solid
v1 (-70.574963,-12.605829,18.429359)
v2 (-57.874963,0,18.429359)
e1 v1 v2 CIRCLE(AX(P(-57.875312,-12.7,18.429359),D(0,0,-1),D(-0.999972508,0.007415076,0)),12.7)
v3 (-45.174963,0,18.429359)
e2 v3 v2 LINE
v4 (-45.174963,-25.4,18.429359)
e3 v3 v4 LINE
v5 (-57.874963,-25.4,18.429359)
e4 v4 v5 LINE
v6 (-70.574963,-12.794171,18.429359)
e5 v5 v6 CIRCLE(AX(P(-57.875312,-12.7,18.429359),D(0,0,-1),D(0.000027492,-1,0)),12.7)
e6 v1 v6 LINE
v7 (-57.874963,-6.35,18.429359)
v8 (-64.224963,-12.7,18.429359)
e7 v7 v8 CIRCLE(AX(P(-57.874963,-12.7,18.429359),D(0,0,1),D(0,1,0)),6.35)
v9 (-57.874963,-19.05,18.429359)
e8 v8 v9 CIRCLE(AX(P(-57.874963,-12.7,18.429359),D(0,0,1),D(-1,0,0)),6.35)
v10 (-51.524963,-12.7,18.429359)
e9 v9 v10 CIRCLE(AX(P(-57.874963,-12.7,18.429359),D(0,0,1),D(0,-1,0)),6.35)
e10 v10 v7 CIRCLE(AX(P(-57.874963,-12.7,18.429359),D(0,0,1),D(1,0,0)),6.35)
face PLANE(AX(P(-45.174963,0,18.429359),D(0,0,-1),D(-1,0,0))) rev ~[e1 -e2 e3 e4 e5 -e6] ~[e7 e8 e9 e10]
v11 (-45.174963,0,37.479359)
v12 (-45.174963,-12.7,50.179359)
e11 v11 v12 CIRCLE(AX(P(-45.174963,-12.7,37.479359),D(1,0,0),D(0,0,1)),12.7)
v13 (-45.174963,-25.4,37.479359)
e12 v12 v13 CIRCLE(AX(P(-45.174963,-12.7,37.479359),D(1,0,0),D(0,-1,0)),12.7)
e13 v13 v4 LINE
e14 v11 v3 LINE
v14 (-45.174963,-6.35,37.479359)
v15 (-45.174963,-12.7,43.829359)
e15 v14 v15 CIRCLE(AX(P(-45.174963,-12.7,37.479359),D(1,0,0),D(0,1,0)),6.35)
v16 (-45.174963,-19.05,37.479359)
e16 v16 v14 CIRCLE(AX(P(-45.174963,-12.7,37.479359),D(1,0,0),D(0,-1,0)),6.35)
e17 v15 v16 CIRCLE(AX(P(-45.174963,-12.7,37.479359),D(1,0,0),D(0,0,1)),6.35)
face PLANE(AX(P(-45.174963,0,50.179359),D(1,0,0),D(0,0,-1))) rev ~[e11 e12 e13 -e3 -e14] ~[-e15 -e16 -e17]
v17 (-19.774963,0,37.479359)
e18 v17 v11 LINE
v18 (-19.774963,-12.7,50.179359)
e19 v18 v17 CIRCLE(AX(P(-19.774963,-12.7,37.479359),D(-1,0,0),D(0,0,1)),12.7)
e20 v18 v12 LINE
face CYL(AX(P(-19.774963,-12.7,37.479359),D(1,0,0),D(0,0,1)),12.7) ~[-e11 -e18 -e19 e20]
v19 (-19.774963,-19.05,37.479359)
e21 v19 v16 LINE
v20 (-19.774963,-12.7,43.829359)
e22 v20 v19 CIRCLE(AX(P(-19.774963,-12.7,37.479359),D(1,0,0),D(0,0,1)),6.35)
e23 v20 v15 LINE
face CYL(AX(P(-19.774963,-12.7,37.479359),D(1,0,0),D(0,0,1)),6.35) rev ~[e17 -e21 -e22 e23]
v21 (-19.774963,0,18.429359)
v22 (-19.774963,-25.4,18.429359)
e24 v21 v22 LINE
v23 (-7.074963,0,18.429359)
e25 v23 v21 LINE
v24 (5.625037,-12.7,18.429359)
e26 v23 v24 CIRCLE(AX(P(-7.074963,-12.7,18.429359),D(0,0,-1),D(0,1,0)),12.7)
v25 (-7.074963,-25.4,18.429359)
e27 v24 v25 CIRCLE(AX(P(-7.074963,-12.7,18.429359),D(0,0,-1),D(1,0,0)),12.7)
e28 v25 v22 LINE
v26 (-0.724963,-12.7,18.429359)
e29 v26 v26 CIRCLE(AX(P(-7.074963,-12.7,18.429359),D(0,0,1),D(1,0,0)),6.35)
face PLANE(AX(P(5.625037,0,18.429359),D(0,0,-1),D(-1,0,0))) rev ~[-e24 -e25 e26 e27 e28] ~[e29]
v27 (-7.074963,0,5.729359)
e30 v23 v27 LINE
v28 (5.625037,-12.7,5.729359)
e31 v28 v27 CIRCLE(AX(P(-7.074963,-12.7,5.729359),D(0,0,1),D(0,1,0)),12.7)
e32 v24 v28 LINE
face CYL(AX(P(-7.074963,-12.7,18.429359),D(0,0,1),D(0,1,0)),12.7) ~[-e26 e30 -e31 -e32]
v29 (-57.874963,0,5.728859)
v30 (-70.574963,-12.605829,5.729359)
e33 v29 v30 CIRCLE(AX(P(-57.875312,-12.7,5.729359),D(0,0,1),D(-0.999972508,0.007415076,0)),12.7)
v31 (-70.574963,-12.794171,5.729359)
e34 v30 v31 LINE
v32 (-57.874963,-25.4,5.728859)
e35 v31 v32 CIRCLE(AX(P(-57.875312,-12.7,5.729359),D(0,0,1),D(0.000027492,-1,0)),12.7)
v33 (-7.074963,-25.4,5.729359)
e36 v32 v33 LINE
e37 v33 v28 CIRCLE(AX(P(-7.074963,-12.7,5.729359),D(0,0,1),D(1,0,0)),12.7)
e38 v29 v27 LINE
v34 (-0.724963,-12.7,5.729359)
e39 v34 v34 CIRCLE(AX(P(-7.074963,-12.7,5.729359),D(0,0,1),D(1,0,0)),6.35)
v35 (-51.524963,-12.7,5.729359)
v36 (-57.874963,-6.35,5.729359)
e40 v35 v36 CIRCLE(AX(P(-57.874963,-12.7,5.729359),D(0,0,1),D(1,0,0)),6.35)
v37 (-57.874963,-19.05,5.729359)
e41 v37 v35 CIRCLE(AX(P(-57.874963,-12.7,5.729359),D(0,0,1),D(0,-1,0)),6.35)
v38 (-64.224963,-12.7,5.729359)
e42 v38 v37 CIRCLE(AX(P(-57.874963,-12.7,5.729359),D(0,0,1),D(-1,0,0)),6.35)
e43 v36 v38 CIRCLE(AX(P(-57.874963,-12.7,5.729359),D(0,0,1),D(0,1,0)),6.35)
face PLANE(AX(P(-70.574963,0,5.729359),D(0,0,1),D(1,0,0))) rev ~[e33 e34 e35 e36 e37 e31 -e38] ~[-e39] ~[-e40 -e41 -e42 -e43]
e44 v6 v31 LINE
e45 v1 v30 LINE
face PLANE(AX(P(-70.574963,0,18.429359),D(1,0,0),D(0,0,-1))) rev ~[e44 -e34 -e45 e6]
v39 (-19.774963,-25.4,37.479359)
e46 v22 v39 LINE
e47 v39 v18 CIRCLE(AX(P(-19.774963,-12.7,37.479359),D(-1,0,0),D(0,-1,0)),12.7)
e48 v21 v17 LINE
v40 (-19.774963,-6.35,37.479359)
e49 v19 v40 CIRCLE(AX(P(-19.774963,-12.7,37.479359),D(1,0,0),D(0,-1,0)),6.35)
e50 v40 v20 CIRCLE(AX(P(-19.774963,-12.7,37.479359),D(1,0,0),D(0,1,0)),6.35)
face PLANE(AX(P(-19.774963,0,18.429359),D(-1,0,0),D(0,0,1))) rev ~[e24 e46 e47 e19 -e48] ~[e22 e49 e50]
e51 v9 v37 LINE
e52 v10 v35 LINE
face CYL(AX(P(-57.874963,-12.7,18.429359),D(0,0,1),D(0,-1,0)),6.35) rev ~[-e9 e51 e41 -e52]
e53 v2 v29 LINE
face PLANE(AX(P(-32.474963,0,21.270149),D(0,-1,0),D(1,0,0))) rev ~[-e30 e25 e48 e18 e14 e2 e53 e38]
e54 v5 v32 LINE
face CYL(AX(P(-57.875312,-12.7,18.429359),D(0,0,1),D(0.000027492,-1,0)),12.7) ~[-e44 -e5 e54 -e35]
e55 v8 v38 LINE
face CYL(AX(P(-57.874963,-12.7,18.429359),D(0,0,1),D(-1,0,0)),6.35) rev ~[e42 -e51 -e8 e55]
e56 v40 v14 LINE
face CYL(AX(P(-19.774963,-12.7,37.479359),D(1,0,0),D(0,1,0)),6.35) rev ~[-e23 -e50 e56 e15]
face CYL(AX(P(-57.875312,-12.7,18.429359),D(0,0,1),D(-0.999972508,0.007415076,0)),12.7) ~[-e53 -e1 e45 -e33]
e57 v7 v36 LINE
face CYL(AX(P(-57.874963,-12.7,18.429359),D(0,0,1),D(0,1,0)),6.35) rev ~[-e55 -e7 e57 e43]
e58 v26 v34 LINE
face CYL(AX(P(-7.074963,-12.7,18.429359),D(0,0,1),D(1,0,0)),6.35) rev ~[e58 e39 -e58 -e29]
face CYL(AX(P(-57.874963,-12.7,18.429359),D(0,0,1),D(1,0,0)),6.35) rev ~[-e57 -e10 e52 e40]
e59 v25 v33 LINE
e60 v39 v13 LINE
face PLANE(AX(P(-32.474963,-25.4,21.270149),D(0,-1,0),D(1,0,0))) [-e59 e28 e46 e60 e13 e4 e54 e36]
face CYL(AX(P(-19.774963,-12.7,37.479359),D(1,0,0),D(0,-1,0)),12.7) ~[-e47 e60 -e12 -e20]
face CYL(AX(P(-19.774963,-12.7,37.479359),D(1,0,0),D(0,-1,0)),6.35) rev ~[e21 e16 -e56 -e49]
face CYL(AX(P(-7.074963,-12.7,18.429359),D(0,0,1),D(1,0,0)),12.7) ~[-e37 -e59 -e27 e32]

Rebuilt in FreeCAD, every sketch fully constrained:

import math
import FreeCAD as App
import Part
import Sketcher
from FreeCAD import Vector
Q = App.Units.Quantity

doc = App.newDocument("Part")
body = doc.addObject("PartDesign::Body", "Body")

# Sketch on XZ plane
sketch1 = body.newObject("Sketcher::SketchObject", "Sketch")
sketch1.AttachmentSupport = (doc.getObject("XZ_Plane"), [""])
sketch1.MapMode = "FlatFace"
sketch1.addGeometry([
    Part.LineSegment(Vector(-71, 18, 0), Vector(-71, 6, 0)),  # 0
    Part.LineSegment(Vector(-71, 6, 0), Vector(6, 6, 0)),  # 1
    Part.LineSegment(Vector(6, 6, 0), Vector(6, 18, 0)),  # 2
    Part.LineSegment(Vector(6, 18, 0), Vector(-20, 18, 0)),  # 3
    Part.LineSegment(Vector(-20, 18, 0), Vector(-20, 50, 0)),  # 4
    Part.LineSegment(Vector(-20, 50, 0), Vector(-45, 50, 0)),  # 5
    Part.LineSegment(Vector(-45, 50, 0), Vector(-45, 18, 0)),  # 6
    Part.LineSegment(Vector(-45, 18, 0), Vector(-71, 18, 0)),  # 7
], False)
sketch1.addConstraint([
    Sketcher.Constraint("Coincident", 0, 2, 1, 1),
    Sketcher.Constraint("Coincident", 1, 2, 2, 1),
    Sketcher.Constraint("Coincident", 2, 2, 3, 1),
    Sketcher.Constraint("Coincident", 3, 2, 4, 1),
    Sketcher.Constraint("Coincident", 4, 2, 5, 1),
    Sketcher.Constraint("Coincident", 5, 2, 6, 1),
    Sketcher.Constraint("Coincident", 6, 2, 7, 1),
    Sketcher.Constraint("Coincident", 7, 2, 0, 1),
    Sketcher.Constraint("Vertical", 0),
    Sketcher.Constraint("Horizontal", 1),
    Sketcher.Constraint("Vertical", 2),
    Sketcher.Constraint("Horizontal", 3),
    Sketcher.Constraint("Vertical", 4),
    Sketcher.Constraint("Horizontal", 5),
    Sketcher.Constraint("Vertical", 6),
    Sketcher.Constraint("Horizontal", 7),
    Sketcher.Constraint("Horizontal", 3, 2, 6, 2),
    Sketcher.Constraint("Equal", 3, 5),
    Sketcher.Constraint("Equal", 5, 7),
    Sketcher.Constraint("DistanceX", 1, 1, 1, 2, Q("3 in")),
    Sketcher.Constraint("DistanceY", 0, 2, 0, 1, Q("0.5 in")),
    Sketcher.Constraint("DistanceY", 4, 1, 4, 2, Q("1.25 in")),
    Sketcher.Constraint("DistanceY", -1, 1, 0, 2, Q("5.729359 mm")),
    Sketcher.Constraint("DistanceX", 0, 2, -1, 1, Q("70.574963 mm")),
])
pad1 = body.newObject("PartDesign::Pad", "Pad")
pad1.Profile = sketch1
pad1.Length = Q("1 in")

# Sketch on XY plane
sketch2 = body.newObject("Sketcher::SketchObject", "Sketch001")
sketch2.AttachmentSupport = (doc.getObject("XY_Plane"), [""])
sketch2.MapMode = "FlatFace"
sketch2.AttachmentOffset = App.Placement(Vector(0, 0, 18.429359), App.Rotation())
sketch2.addGeometry([
    Part.Circle(Vector(-7, -13, 0), Vector(0, 0, 1), 6),  # 0
    Part.ArcOfCircle(Part.Circle(Vector(-7, -13, 0), Vector(0, 0, 1), 13), math.radians(-90), math.radians(0)),  # 1
    Part.LineSegment(Vector(-7, -25, 0), Vector(6, -25, 0)),  # 2
    Part.LineSegment(Vector(6, -25, 0), Vector(6, -13, 0)),  # 3
    Part.ArcOfCircle(Part.Circle(Vector(-7, -13, 0), Vector(0, 0, 1), 13), math.radians(0), math.radians(90)),  # 4
    Part.LineSegment(Vector(6, -13, 0), Vector(6, 0, 0)),  # 5
    Part.LineSegment(Vector(6, 0, 0), Vector(-7, 0, 0)),  # 6
], False)
sketch2.addConstraint([
    Sketcher.Constraint("Tangent", 1, 1, 2, 1),
    Sketcher.Constraint("Coincident", 2, 2, 3, 1),
    Sketcher.Constraint("Tangent", 3, 2, 1, 2),
    Sketcher.Constraint("Tangent", 4, 1, 5, 1),
    Sketcher.Constraint("Coincident", 5, 2, 6, 1),
    Sketcher.Constraint("Tangent", 6, 2, 4, 2),
    Sketcher.Constraint("Horizontal", 2),
    Sketcher.Constraint("Vertical", 3),
    Sketcher.Constraint("Vertical", 5),
    Sketcher.Constraint("Horizontal", 6),
    Sketcher.Constraint("Coincident", 1, 3, 0, 3),
    Sketcher.Constraint("Coincident", 4, 3, 0, 3),
    Sketcher.Constraint("Equal", 1, 4),
    Sketcher.Constraint("PointOnObject", 5, 2, -1),
    Sketcher.Constraint("Diameter", 0, Q("0.5 in")),
    Sketcher.Constraint("Radius", 1, Q("0.5 in")),
    Sketcher.Constraint("DistanceX", 0, 3, -1, 1, Q("7.074963 mm")),
])
pocket1 = body.newObject("PartDesign::Pocket", "Pocket")
pocket1.Profile = sketch2
pocket1.Type = "ThroughAll"

# Sketch on YZ plane
sketch3 = body.newObject("Sketcher::SketchObject", "Sketch002")
sketch3.AttachmentSupport = (doc.getObject("YZ_Plane"), [""])
sketch3.MapMode = "FlatFace"
sketch3.AttachmentOffset = App.Placement(Vector(0, 0, -19.774963), App.Rotation())
sketch3.addGeometry([
    Part.ArcOfCircle(Part.Circle(Vector(-13, 37, 0), Vector(0, 0, 1), 6), math.radians(180), math.radians(360)),  # 0
    Part.ArcOfCircle(Part.Circle(Vector(-13, 37, 0), Vector(0, 0, 1), 6), math.radians(0), math.radians(90)),  # 1
    Part.ArcOfCircle(Part.Circle(Vector(-13, 37, 0), Vector(0, 0, 1), 6), math.radians(90), math.radians(180)),  # 2
    Part.ArcOfCircle(Part.Circle(Vector(-13, 37, 0), Vector(0, 0, 1), 13), math.radians(90), math.radians(180)),  # 3
    Part.LineSegment(Vector(-13, 50, 0), Vector(-25, 50, 0)),  # 4
    Part.LineSegment(Vector(-25, 50, 0), Vector(-25, 37, 0)),  # 5
    Part.ArcOfCircle(Part.Circle(Vector(-13, 37, 0), Vector(0, 0, 1), 13), math.radians(0), math.radians(90)),  # 6
    Part.LineSegment(Vector(0, 37, 0), Vector(0, 50, 0)),  # 7
    Part.LineSegment(Vector(0, 50, 0), Vector(-13, 50, 0)),  # 8
], False)
sketch3.addConstraint([
    Sketcher.Constraint("Tangent", 0, 2, 1, 1),
    Sketcher.Constraint("Tangent", 1, 2, 2, 1),
    Sketcher.Constraint("Tangent", 2, 2, 0, 1),
    Sketcher.Constraint("Tangent", 3, 1, 4, 1),
    Sketcher.Constraint("Coincident", 4, 2, 5, 1),
    Sketcher.Constraint("Tangent", 5, 2, 3, 2),
    Sketcher.Constraint("Tangent", 6, 1, 7, 1),
    Sketcher.Constraint("Coincident", 7, 2, 8, 1),
    Sketcher.Constraint("Tangent", 8, 2, 6, 2),
    Sketcher.Constraint("Horizontal", 4),
    Sketcher.Constraint("Vertical", 5),
    Sketcher.Constraint("Vertical", 7),
    Sketcher.Constraint("Horizontal", 8),
    Sketcher.Constraint("Coincident", 3, 3, 0, 3),
    Sketcher.Constraint("Coincident", 6, 3, 0, 3),
    Sketcher.Constraint("Equal", 3, 6),
    Sketcher.Constraint("PointOnObject", 6, 1, -2),
    Sketcher.Constraint("Horizontal", 6, 3, 0, 2),
    Sketcher.Constraint("Horizontal", 0, 2, 2, 2),
    Sketcher.Constraint("Vertical", 6, 3, 1, 2),
    Sketcher.Constraint("Radius", 3, Q("0.5 in")),
    Sketcher.Constraint("Radius", 0, Q("0.25 in")),
    Sketcher.Constraint("DistanceY", -1, 1, 0, 3, Q("37.479359 mm")),
])
pocket2 = body.newObject("PartDesign::Pocket", "Pocket001")
pocket2.Profile = sketch3
pocket2.Type = "ThroughAll"

# Sketch on XY plane
sketch4 = body.newObject("Sketcher::SketchObject", "Sketch003")
sketch4.AttachmentSupport = (doc.getObject("XY_Plane"), [""])
sketch4.MapMode = "FlatFace"
sketch4.AttachmentOffset = App.Placement(Vector(0, 0, 18.429359), App.Rotation())
sketch4.addGeometry([
    Part.ArcOfCircle(Part.Circle(Vector(-57.875312, -12.7, 0), Vector(0, 0, 1), 12.7), math.radians(89.998425), math.radians(179.575144)),  # 0
    Part.LineSegment(Vector(-57.874963, 0, 0), Vector(-70.574963, 0, 0)),  # 1
    Part.LineSegment(Vector(-70.574963, 0, 0), Vector(-70.574963, -12.605829, 0)),  # 2
    Part.LineSegment(Vector(-70.574963, -25.4, 0), Vector(-57.874963, -25.4, 0)),  # 3
    Part.ArcOfCircle(Part.Circle(Vector(-57.875312, -12.7, 0), Vector(0, 0, 1), 12.7), math.radians(-179.575144), math.radians(-89.998425)),  # 4
    Part.LineSegment(Vector(-70.574963, -12.794171, 0), Vector(-70.574963, -25.4, 0)),  # 5
    Part.ArcOfCircle(Part.Circle(Vector(-57.874963, -12.7, 0), Vector(0, 0, 1), 6.35), math.radians(-90), math.radians(0)),  # 6
    Part.ArcOfCircle(Part.Circle(Vector(-57.874963, -12.7, 0), Vector(0, 0, 1), 6.35), math.radians(0), math.radians(90)),  # 7
    Part.ArcOfCircle(Part.Circle(Vector(-57.874963, -12.7, 0), Vector(0, 0, 1), 6.35), math.radians(90), math.radians(180)),  # 8
    Part.ArcOfCircle(Part.Circle(Vector(-57.874963, -12.7, 0), Vector(0, 0, 1), 6.35), math.radians(180), math.radians(270)),  # 9
], False)
sketch4.addConstraint([
    Sketcher.Constraint("Coincident", 0, 1, 1, 1),
    Sketcher.Constraint("Coincident", 1, 2, 2, 1),
    Sketcher.Constraint("Coincident", 2, 2, 0, 2),
    Sketcher.Constraint("Coincident", 3, 2, 4, 2),
    Sketcher.Constraint("Coincident", 4, 1, 5, 1),
    Sketcher.Constraint("Coincident", 5, 2, 3, 1),
    Sketcher.Constraint("Tangent", 6, 2, 7, 1),
    Sketcher.Constraint("Tangent", 7, 2, 8, 1),
    Sketcher.Constraint("Tangent", 8, 2, 9, 1),
    Sketcher.Constraint("Tangent", 9, 2, 6, 1),
    Sketcher.Constraint("Horizontal", 1),
    Sketcher.Constraint("Vertical", 2),
    Sketcher.Constraint("Horizontal", 3),
    Sketcher.Constraint("Vertical", 5),
    Sketcher.Constraint("Coincident", 4, 3, 0, 3),
    Sketcher.Constraint("Equal", 0, 4),
    Sketcher.Constraint("Equal", 6, 7),
    Sketcher.Constraint("PointOnObject", 0, 1, -1),
    Sketcher.Constraint("Horizontal", 4, 3, 6, 3),
    Sketcher.Constraint("Horizontal", 9, 3, 6, 2),
    Sketcher.Constraint("Horizontal", 6, 2, 8, 2),
    Sketcher.Constraint("Vertical", 9, 3, 0, 1),
    Sketcher.Constraint("Vertical", 0, 1, 3, 2),
    Sketcher.Constraint("Vertical", 2, 2, 4, 1),
    Sketcher.Constraint("Vertical", 3, 2, 7, 2),
    Sketcher.Constraint("Vertical", 7, 2, 9, 2),
    Sketcher.Constraint("Radius", 0, Q("0.5 in")),
    Sketcher.Constraint("Radius", 6, Q("0.25 in")),
    Sketcher.Constraint("DistanceX", 1, 2, 1, 1, Q("0.5 in")),
    Sketcher.Constraint("DistanceY", 2, 2, 2, 1, Q("12.605829 mm")),
    Sketcher.Constraint("DistanceX", 0, 3, -1, 1, Q("57.875312 mm")),
])
pocket3 = body.newObject("PartDesign::Pocket", "Pocket002")
pocket3.Profile = sketch4
pocket3.Type = "ThroughAll"

doc.recompute()
